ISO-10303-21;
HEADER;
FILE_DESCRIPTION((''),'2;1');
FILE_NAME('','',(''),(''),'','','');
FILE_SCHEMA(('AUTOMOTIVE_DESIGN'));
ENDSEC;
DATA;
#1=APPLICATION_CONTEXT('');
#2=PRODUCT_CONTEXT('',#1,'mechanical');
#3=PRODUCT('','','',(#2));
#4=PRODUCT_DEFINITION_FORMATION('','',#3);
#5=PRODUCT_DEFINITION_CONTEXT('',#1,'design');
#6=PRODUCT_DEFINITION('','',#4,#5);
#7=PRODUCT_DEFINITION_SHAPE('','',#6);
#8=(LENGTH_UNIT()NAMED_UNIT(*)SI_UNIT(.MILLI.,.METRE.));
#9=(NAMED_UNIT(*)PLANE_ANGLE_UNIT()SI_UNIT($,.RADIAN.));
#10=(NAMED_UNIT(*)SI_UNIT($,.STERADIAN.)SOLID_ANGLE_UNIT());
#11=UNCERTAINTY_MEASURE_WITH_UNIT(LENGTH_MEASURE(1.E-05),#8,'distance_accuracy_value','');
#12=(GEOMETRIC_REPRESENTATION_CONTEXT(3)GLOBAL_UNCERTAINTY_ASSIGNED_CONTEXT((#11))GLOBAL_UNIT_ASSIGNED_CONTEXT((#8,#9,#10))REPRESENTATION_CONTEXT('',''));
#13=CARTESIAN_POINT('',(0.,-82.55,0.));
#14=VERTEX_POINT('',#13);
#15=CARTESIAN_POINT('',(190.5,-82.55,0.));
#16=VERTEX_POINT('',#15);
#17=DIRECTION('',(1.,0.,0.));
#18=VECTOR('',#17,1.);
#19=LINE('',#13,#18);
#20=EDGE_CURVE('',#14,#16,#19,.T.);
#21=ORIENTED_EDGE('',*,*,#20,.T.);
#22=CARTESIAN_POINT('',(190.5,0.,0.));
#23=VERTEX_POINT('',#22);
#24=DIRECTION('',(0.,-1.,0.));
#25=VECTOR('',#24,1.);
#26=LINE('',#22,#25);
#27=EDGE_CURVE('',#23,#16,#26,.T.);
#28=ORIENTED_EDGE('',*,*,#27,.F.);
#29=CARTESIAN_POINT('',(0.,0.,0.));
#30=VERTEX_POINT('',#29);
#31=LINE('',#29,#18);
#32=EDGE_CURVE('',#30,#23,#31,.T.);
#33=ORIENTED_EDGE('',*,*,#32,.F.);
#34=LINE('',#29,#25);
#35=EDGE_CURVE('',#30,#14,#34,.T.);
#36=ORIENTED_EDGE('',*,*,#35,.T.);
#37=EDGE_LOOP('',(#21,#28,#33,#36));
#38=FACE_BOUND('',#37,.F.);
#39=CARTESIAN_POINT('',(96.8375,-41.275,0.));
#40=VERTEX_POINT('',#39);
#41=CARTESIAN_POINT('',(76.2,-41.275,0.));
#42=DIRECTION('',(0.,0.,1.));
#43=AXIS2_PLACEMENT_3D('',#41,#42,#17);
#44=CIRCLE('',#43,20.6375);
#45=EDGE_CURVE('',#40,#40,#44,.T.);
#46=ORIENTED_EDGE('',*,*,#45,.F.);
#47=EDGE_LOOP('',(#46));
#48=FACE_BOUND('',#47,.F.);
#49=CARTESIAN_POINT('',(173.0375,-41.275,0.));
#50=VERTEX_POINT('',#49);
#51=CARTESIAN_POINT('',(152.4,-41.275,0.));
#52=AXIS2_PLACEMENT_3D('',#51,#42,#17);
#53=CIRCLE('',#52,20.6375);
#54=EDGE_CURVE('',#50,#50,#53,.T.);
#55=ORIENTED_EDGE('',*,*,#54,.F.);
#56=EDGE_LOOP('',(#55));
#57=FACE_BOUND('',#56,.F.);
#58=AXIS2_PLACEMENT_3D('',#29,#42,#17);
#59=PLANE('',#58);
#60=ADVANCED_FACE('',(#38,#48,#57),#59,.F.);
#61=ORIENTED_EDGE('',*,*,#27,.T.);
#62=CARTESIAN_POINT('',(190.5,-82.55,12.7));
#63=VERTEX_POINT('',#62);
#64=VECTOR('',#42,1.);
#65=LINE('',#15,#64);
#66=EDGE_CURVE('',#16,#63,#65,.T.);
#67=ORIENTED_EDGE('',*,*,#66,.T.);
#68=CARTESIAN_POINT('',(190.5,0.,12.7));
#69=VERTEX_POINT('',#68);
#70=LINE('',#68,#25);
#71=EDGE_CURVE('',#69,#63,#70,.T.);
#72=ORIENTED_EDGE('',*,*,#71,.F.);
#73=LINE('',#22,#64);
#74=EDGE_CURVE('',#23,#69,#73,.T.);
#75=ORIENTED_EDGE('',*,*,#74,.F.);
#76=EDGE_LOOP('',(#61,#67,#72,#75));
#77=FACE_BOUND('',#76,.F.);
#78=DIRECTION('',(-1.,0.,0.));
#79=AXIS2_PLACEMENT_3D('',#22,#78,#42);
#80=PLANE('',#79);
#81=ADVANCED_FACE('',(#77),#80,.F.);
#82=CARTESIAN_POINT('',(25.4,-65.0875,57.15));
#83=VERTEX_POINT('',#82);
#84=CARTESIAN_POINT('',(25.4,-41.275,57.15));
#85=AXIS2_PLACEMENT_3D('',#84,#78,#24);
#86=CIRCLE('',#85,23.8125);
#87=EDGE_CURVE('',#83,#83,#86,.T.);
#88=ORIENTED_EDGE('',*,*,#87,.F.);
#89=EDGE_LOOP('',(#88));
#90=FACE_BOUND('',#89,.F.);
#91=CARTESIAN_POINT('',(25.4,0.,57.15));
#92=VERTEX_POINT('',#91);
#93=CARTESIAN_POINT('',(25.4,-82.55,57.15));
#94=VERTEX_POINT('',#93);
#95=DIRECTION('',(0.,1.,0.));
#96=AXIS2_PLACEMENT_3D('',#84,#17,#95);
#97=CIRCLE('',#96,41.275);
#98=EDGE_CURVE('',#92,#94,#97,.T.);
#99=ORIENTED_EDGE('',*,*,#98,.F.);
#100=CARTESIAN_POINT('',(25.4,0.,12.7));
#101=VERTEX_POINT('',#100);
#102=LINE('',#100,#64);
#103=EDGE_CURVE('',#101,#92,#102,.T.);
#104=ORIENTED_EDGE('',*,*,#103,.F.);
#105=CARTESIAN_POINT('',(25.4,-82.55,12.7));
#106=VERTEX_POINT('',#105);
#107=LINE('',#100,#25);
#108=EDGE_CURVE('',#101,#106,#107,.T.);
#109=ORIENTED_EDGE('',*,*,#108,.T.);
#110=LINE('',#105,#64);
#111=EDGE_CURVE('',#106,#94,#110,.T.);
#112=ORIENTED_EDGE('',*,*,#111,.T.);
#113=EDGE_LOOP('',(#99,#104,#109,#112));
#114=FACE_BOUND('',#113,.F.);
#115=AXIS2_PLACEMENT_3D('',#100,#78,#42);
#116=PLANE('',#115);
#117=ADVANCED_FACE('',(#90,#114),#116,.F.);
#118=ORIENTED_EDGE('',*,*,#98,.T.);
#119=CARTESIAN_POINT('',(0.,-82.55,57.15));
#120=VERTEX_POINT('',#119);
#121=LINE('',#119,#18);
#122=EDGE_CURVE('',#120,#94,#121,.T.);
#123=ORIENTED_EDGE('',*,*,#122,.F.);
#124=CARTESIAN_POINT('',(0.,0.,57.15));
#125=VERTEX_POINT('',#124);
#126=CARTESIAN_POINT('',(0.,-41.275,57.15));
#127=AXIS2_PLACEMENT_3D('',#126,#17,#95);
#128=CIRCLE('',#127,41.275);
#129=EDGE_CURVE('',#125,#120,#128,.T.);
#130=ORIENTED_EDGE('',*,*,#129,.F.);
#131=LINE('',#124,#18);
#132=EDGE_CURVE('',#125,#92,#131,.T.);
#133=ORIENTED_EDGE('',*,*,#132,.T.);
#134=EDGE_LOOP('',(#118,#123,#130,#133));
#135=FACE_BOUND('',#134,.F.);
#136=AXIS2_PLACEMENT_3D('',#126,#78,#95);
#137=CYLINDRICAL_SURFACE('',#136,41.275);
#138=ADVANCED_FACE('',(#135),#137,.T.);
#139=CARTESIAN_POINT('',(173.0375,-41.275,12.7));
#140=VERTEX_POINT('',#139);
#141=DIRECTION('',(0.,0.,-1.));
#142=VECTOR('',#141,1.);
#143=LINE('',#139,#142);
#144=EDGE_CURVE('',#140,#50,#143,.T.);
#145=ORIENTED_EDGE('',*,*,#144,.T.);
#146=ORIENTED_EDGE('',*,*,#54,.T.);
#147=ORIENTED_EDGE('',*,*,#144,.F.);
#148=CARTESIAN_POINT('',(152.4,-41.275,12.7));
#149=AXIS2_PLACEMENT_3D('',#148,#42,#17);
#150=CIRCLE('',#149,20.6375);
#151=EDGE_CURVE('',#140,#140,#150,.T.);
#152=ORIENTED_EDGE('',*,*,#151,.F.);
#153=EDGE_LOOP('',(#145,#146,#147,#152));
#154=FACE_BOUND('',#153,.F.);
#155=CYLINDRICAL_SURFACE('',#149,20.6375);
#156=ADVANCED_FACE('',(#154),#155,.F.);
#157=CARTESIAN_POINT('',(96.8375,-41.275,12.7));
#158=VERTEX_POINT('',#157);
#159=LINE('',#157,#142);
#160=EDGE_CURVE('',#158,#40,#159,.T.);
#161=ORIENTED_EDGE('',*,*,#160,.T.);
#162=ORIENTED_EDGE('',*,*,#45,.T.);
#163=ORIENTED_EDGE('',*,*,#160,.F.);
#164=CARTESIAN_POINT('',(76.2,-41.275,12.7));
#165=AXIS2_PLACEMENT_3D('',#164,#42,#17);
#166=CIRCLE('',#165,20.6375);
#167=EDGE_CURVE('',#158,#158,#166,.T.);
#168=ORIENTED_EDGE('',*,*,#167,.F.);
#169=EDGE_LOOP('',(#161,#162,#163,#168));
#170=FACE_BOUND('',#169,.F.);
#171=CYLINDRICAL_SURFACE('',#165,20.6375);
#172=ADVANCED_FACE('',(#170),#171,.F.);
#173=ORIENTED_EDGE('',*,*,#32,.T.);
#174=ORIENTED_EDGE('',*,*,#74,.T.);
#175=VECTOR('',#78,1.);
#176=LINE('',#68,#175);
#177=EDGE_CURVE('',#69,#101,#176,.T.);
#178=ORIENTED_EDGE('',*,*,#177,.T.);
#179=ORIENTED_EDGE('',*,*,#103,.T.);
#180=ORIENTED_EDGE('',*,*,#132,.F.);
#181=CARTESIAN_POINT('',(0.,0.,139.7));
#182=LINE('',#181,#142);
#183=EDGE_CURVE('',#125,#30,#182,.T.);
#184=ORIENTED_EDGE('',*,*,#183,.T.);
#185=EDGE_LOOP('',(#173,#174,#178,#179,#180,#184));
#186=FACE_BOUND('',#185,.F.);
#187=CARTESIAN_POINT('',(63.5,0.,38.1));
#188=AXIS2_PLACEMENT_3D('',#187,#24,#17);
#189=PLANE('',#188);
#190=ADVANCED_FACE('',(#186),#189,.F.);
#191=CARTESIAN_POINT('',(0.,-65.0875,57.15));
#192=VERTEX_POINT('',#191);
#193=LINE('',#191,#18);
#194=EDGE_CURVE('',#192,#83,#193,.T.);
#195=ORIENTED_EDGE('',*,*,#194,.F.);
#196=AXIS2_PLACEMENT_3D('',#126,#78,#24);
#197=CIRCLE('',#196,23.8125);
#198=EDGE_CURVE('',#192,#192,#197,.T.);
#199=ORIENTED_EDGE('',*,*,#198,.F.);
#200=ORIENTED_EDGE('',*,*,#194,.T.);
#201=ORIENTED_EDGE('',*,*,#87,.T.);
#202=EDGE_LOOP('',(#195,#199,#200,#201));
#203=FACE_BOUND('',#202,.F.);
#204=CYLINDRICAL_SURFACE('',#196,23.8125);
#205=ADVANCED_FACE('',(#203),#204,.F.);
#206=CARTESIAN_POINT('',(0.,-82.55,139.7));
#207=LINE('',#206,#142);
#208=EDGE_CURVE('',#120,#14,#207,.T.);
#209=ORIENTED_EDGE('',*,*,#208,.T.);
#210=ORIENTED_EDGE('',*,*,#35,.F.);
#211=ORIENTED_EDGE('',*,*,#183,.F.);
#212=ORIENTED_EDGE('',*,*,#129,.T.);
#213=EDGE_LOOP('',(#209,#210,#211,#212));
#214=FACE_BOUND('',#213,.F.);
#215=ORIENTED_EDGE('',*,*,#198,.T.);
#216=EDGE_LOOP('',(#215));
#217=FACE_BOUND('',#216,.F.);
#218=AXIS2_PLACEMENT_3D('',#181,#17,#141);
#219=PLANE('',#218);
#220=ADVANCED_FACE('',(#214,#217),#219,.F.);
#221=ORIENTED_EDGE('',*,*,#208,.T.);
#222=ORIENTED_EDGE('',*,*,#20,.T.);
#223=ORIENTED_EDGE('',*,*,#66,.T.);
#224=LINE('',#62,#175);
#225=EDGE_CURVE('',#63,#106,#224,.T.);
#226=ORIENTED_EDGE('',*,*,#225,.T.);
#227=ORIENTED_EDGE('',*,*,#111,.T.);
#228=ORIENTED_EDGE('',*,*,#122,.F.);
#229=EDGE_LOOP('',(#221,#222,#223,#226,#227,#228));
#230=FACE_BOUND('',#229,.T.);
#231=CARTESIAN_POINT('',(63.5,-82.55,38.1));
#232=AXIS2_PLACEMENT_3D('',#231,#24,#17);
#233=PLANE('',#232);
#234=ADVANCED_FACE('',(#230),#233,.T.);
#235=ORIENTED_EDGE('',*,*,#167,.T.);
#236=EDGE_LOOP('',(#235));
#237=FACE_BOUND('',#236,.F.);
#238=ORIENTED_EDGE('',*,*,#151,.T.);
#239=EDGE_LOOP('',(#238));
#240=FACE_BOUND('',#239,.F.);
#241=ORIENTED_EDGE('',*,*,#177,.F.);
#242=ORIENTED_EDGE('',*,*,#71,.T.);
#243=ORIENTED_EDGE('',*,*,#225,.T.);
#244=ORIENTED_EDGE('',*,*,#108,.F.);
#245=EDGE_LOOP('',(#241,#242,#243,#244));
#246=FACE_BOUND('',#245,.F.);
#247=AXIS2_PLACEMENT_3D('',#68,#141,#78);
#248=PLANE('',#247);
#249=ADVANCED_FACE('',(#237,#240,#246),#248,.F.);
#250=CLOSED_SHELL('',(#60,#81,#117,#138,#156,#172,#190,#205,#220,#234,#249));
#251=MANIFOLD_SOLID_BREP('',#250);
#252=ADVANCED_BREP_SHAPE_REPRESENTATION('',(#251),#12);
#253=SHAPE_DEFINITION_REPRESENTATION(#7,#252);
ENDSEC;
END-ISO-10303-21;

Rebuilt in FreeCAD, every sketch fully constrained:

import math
import FreeCAD as App
import Part
import Sketcher

V = App.Vector
Q = App.Units.Quantity

doc = App.newDocument("Part")
body = doc.addObject("PartDesign::Body", "Body")

sketch1 = body.newObject("Sketcher::SketchObject", "Sketch")
sketch1.AttachmentSupport = (doc.getObject("XZ_Plane"), [""])
sketch1.MapMode = "FlatFace"
sketch1.addGeometry([
    Part.LineSegment(V(0, 139.7, 0), V(0, 0, 0)),
    Part.LineSegment(V(0, 0, 0), V(190.5, 0, 0)),
    Part.LineSegment(V(190.5, 0, 0), V(190.5, 12.7, 0)),
    Part.LineSegment(V(190.5, 12.7, 0), V(25.4, 12.7, 0)),
    Part.LineSegment(V(25.4, 12.7, 0), V(25.4, 139.7, 0)),
    Part.LineSegment(V(25.4, 139.7, 0), V(0, 139.7, 0)),
], False)
sketch1.addConstraint([
    Sketcher.Constraint("Coincident", 0, 2, 1, 1),
    Sketcher.Constraint("Coincident", 1, 2, 2, 1),
    Sketcher.Constraint("Coincident", 2, 2, 3, 1),
    Sketcher.Constraint("Coincident", 3, 2, 4, 1),
    Sketcher.Constraint("Coincident", 4, 2, 5, 1),
    Sketcher.Constraint("Coincident", 5, 2, 0, 1),
    Sketcher.Constraint("Vertical", 0),
    Sketcher.Constraint("Horizontal", 1),
    Sketcher.Constraint("Vertical", 2),
    Sketcher.Constraint("Horizontal", 3),
    Sketcher.Constraint("Vertical", 4),
    Sketcher.Constraint("Horizontal", 5),
    Sketcher.Constraint("Coincident", 0, 2, -1, 1),
    Sketcher.Constraint("DistanceX", 5, 2, 5, 1, Q("1 in")),
    Sketcher.Constraint("DistanceY", 4, 1, 4, 2, Q("5 in")),
    Sketcher.Constraint("DistanceX", 1, 1, 1, 2, Q("7.5 in")),
    Sketcher.Constraint("DistanceY", 0, 2, 0, 1, Q("5.5 in")),
])
pad1 = body.newObject("PartDesign::Pad", "Pad")
pad1.Profile = sketch1
pad1.Length = Q("3.25 in")

sketch2 = body.newObject("Sketcher::SketchObject", "Sketch001")
sketch2.AttachmentSupport = (doc.getObject("XY_Plane"), [""])
sketch2.MapMode = "FlatFace"
sketch2.AttachmentOffset = App.Placement(V(0, 0, 0.5 * 25.4), App.Rotation())
sketch2.addGeometry([
    Part.Circle(V(76.2, -41.275, 0), V(0, 0, 1), 20.6375),
    Part.Circle(V(152.4, -41.275, 0), V(0, 0, 1), 20.6375),
], False)
sketch2.addConstraint([
    Sketcher.Constraint("Equal", 0, 1),
    Sketcher.Constraint("Horizontal", 0, 3, 1, 3),
    Sketcher.Constraint("Diameter", 0, Q("1.625 in")),
    Sketcher.Constraint("DistanceX", -1, 1, 0, 3, Q("3 in")),
    Sketcher.Constraint("DistanceX", -1, 1, 1, 3, Q("6 in")),
    Sketcher.Constraint("DistanceY", 0, 3, -1, 1, Q("1.625 in")),
])
pocket1 = body.newObject("PartDesign::Pocket", "Pocket")
pocket1.Profile = sketch2
pocket1.Type = "ThroughAll"

sketch3 = body.newObject("Sketcher::SketchObject", "Sketch002")
sketch3.AttachmentSupport = (doc.getObject("YZ_Plane"), [""])
sketch3.MapMode = "FlatFace"
sketch3.addGeometry([
    Part.ArcOfCircle(Part.Circle(V(-41.275, 57.15, 0), V(0, 0, 1), 41.275), math.radians(0), math.radians(180)),
    Part.LineSegment(V(-82.55, 57.15, 0), V(-82.55, 139.7, 0)),
    Part.LineSegment(V(-82.55, 139.7, 0), V(0, 139.7, 0)),
    Part.LineSegment(V(0, 139.7, 0), V(0, 57.15, 0)),
], False)
sketch3.addConstraint([
    Sketcher.Constraint("Tangent", 0, 2, 1, 1),
    Sketcher.Constraint("Coincident", 1, 2, 2, 1),
    Sketcher.Constraint("Coincident", 2, 2, 3, 1),
    Sketcher.Constraint("Tangent", 3, 2, 0, 1),
    Sketcher.Constraint("Vertical", 1),
    Sketcher.Constraint("Horizontal", 2),
    Sketcher.Constraint("Vertical", 3),
    Sketcher.Constraint("PointOnObject", 2, 2, -2),
    Sketcher.Constraint("Equal", 2, 1),
    Sketcher.Constraint("Radius", 0, Q("1.625 in")),
    Sketcher.Constraint("DistanceY", -1, 1, 1, 2, Q("5.5 in")),
])
pocket2 = body.newObject("PartDesign::Pocket", "Pocket001")
pocket2.Profile = sketch3
pocket2.Length = Q("1 in")
pocket2.Reversed = True

sketch4 = body.newObject("Sketcher::SketchObject", "Sketch003")
sketch4.AttachmentSupport = (doc.getObject("YZ_Plane"), [""])
sketch4.MapMode = "FlatFace"
sketch4.addGeometry(Part.Circle(V(-41.275, 57.15, 0), V(0, 0, 1), 23.8125), False)
sketch4.addConstraint([
    Sketcher.Constraint("Diameter", 0, Q("1.875 in")),
    Sketcher.Constraint("DistanceY", -1, 1, 0, 3, Q("2.25 in")),
    Sketcher.Constraint("DistanceX", 0, 3, -1, 1, Q("1.625 in")),
])
pocket3 = body.newObject("PartDesign::Pocket", "Pocket002")
pocket3.Profile = sketch4
pocket3.Type = "ThroughAll"
pocket3.Reversed = True

doc.recompute()
